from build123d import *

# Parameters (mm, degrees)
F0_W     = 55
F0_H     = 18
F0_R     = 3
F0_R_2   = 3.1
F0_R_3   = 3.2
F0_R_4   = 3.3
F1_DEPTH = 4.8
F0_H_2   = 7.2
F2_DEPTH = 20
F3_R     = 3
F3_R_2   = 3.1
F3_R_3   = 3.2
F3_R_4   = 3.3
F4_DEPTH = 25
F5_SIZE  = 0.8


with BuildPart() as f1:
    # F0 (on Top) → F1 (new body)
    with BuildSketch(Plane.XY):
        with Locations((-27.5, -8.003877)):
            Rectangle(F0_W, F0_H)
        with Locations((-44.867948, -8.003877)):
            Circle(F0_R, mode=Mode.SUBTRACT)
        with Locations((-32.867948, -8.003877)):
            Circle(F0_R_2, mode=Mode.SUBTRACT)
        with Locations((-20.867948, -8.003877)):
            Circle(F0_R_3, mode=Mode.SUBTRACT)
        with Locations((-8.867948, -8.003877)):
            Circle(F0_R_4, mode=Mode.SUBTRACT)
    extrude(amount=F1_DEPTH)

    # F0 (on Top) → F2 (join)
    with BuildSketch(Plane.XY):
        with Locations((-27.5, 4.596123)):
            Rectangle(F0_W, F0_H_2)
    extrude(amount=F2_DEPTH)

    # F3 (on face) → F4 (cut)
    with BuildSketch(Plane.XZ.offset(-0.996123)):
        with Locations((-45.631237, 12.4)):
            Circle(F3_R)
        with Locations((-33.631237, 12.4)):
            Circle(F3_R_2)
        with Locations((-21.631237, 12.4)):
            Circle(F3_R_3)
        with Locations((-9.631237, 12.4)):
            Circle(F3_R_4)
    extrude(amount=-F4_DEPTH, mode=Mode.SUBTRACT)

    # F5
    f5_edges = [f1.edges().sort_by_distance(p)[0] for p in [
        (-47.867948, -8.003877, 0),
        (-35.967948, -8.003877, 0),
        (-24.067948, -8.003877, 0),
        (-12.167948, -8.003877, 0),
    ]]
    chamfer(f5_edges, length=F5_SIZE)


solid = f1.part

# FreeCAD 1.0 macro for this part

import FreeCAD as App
import Part
import Sketcher

V = App.Vector


def edges_at(feature, points):
    """Names of the edges that pass closest to the given points."""
    edges = feature.Shape.Edges
    near = lambda p: min(range(len(edges)), key=lambda i: edges[i].distToShape(Part.Vertex(*p))[0])
    return sorted({f"Edge{near(p) + 1}" for p in points})


def add_polygon(sketch, points):
    """Adds a closed chain of lines whose ends are joined by coincident constraints."""
    first, n = sketch.GeometryCount, len(points)
    for a, b in zip(points, points[1:] + points[:1]):
        sketch.addGeometry(Part.LineSegment(App.Vector(*a, 0), App.Vector(*b, 0)), False)
    for i in range(n):
        sketch.addConstraint(Sketcher.Constraint("Coincident", first + i, 2, first + (i + 1) % n, 1))

doc = App.newDocument("Part")
body = doc.addObject("PartDesign::Body", "Body")

# Sketch on XY plane
sketch1 = body.newObject("Sketcher::SketchObject", "Sketch")
sketch1.AttachmentSupport = (doc.getObject("XY_Plane"), [""])
sketch1.MapMode = "FlatFace"
add_polygon(sketch1, [(-55, 1), (-55, -17), (0, -17), (0, 1)])  # lines 0-3
sketch1.addGeometry(Part.Circle(V(-44.9, -8, 0), V(0, 0, 1), 3), False)  # 4
sketch1.addGeometry(Part.Circle(V(-32.9, -8, 0), V(0, 0, 1), 3.1), False)  # 5
sketch1.addGeometry(Part.Circle(V(-20.9, -8, 0), V(0, 0, 1), 3.2), False)  # 6
sketch1.addGeometry(Part.Circle(V(-8.9, -8, 0), V(0, 0, 1), 3.3), False)  # 7
sketch1.addConstraint([
    Sketcher.Constraint("Vertical", 0),
    Sketcher.Constraint("Horizontal", 1),
    Sketcher.Constraint("Vertical", 2),
    Sketcher.Constraint("Horizontal", 3),
    Sketcher.Constraint("PointOnObject", 1, 2, -2),
    Sketcher.Constraint("Horizontal", 4, 3, 5, 3),
    Sketcher.Constraint("Horizontal", 5, 3, 6, 3),
    Sketcher.Constraint("Horizontal", 6, 3, 7, 3),
    Sketcher.Constraint("Diameter", 4, 6.0),
    Sketcher.Constraint("Diameter", 5, 6.2),
    Sketcher.Constraint("Diameter", 6, 6.4),
    Sketcher.Constraint("Diameter", 7, 6.6),
    Sketcher.Constraint("DistanceX", 1, 1, 1, 2, 55.0),
    Sketcher.Constraint("DistanceY", 0, 2, 0, 1, 18.0),
    Sketcher.Constraint("DistanceX", 4, 3, 5, 3, 12.0),
    Sketcher.Constraint("DistanceX", 5, 3, 6, 3, 12.0),
    Sketcher.Constraint("DistanceX", 6, 3, 7, 3, 12.0),
    Sketcher.Constraint("DistanceY", 0, 2, 4, 3, 9.0),
    Sketcher.Constraint("DistanceX", 4, 3, -1, 1, 44.867948),
    Sketcher.Constraint("DistanceY", 4, 3, -1, 1, 8.003877),
])
pad1 = body.newObject("PartDesign::Pad", "Pad")
pad1.Profile = sketch1
pad1.Length = 4.8

# Sketch on XY plane
sketch2 = body.newObject("Sketcher::SketchObject", "Sketch001")
sketch2.AttachmentSupport = (doc.getObject("XY_Plane"), [""])
sketch2.MapMode = "FlatFace"
add_polygon(sketch2, [(-55, 8), (-55, 1), (0, 1), (0, 8)])  # lines 0-3
sketch2.addConstraint([
    Sketcher.Constraint("Vertical", 0),
    Sketcher.Constraint("Horizontal", 1),
    Sketcher.Constraint("Vertical", 2),
    Sketcher.Constraint("Horizontal", 3),
    Sketcher.Constraint("PointOnObject", 1, 2, -2),
    Sketcher.Constraint("DistanceX", 1, 1, 1, 2, 55.0),
    Sketcher.Constraint("DistanceY", 0, 2, 0, 1, 7.2),
    Sketcher.Constraint("DistanceY", -1, 1, 0, 2, 0.996123),
])
pad2 = body.newObject("PartDesign::Pad", "Pad001")
pad2.Profile = sketch2
pad2.Length = 20

# Sketch on XZ plane
sketch3 = body.newObject("Sketcher::SketchObject", "Sketch002")
sketch3.AttachmentSupport = (doc.getObject("XZ_Plane"), [""])
sketch3.MapMode = "FlatFace"
sketch3.AttachmentOffset = App.Placement(V(0, 0, -0.996123), App.Rotation())
sketch3.addGeometry([
    Part.Circle(V(-45.6, 12.4, 0), V(0, 0, 1), 3),
    Part.Circle(V(-33.6, 12.4, 0), V(0, 0, 1), 3.1),
    Part.Circle(V(-21.6, 12.4, 0), V(0, 0, 1), 3.2),
    Part.Circle(V(-9.6, 12.4, 0), V(0, 0, 1), 3.3),
], False)
sketch3.addConstraint([
    Sketcher.Constraint("Horizontal", 0, 3, 1, 3),
    Sketcher.Constraint("Horizontal", 1, 3, 2, 3),
    Sketcher.Constraint("Horizontal", 2, 3, 3, 3),
    Sketcher.Constraint("Diameter", 0, 6.0),
    Sketcher.Constraint("Diameter", 1, 6.2),
    Sketcher.Constraint("Diameter", 2, 6.4),
    Sketcher.Constraint("Diameter", 3, 6.6),
    Sketcher.Constraint("DistanceX", 0, 3, 1, 3, 12.0),
    Sketcher.Constraint("DistanceX", 1, 3, 2, 3, 12.0),
    Sketcher.Constraint("DistanceX", 2, 3, 3, 3, 12.0),
    Sketcher.Constraint("DistanceY", -1, 1, 0, 3, 12.4),
    Sketcher.Constraint("DistanceX", 0, 3, -1, 1, 45.631237),
])
pocket1 = body.newObject("PartDesign::Pocket", "Pocket")
pocket1.Profile = sketch3
pocket1.Length = 25
doc.recompute()

chamfer = body.newObject("PartDesign::Chamfer", "Chamfer")
chamfer.Base = (pocket1, edges_at(pocket1, [
    (-47.868, -8.004, 0),
    (-35.968, -8.004, 0),
    (-24.068, -8.004, 0),
    (-12.168, -8.004, 0),
]))
chamfer.Size = 0.8

doc.recompute()
